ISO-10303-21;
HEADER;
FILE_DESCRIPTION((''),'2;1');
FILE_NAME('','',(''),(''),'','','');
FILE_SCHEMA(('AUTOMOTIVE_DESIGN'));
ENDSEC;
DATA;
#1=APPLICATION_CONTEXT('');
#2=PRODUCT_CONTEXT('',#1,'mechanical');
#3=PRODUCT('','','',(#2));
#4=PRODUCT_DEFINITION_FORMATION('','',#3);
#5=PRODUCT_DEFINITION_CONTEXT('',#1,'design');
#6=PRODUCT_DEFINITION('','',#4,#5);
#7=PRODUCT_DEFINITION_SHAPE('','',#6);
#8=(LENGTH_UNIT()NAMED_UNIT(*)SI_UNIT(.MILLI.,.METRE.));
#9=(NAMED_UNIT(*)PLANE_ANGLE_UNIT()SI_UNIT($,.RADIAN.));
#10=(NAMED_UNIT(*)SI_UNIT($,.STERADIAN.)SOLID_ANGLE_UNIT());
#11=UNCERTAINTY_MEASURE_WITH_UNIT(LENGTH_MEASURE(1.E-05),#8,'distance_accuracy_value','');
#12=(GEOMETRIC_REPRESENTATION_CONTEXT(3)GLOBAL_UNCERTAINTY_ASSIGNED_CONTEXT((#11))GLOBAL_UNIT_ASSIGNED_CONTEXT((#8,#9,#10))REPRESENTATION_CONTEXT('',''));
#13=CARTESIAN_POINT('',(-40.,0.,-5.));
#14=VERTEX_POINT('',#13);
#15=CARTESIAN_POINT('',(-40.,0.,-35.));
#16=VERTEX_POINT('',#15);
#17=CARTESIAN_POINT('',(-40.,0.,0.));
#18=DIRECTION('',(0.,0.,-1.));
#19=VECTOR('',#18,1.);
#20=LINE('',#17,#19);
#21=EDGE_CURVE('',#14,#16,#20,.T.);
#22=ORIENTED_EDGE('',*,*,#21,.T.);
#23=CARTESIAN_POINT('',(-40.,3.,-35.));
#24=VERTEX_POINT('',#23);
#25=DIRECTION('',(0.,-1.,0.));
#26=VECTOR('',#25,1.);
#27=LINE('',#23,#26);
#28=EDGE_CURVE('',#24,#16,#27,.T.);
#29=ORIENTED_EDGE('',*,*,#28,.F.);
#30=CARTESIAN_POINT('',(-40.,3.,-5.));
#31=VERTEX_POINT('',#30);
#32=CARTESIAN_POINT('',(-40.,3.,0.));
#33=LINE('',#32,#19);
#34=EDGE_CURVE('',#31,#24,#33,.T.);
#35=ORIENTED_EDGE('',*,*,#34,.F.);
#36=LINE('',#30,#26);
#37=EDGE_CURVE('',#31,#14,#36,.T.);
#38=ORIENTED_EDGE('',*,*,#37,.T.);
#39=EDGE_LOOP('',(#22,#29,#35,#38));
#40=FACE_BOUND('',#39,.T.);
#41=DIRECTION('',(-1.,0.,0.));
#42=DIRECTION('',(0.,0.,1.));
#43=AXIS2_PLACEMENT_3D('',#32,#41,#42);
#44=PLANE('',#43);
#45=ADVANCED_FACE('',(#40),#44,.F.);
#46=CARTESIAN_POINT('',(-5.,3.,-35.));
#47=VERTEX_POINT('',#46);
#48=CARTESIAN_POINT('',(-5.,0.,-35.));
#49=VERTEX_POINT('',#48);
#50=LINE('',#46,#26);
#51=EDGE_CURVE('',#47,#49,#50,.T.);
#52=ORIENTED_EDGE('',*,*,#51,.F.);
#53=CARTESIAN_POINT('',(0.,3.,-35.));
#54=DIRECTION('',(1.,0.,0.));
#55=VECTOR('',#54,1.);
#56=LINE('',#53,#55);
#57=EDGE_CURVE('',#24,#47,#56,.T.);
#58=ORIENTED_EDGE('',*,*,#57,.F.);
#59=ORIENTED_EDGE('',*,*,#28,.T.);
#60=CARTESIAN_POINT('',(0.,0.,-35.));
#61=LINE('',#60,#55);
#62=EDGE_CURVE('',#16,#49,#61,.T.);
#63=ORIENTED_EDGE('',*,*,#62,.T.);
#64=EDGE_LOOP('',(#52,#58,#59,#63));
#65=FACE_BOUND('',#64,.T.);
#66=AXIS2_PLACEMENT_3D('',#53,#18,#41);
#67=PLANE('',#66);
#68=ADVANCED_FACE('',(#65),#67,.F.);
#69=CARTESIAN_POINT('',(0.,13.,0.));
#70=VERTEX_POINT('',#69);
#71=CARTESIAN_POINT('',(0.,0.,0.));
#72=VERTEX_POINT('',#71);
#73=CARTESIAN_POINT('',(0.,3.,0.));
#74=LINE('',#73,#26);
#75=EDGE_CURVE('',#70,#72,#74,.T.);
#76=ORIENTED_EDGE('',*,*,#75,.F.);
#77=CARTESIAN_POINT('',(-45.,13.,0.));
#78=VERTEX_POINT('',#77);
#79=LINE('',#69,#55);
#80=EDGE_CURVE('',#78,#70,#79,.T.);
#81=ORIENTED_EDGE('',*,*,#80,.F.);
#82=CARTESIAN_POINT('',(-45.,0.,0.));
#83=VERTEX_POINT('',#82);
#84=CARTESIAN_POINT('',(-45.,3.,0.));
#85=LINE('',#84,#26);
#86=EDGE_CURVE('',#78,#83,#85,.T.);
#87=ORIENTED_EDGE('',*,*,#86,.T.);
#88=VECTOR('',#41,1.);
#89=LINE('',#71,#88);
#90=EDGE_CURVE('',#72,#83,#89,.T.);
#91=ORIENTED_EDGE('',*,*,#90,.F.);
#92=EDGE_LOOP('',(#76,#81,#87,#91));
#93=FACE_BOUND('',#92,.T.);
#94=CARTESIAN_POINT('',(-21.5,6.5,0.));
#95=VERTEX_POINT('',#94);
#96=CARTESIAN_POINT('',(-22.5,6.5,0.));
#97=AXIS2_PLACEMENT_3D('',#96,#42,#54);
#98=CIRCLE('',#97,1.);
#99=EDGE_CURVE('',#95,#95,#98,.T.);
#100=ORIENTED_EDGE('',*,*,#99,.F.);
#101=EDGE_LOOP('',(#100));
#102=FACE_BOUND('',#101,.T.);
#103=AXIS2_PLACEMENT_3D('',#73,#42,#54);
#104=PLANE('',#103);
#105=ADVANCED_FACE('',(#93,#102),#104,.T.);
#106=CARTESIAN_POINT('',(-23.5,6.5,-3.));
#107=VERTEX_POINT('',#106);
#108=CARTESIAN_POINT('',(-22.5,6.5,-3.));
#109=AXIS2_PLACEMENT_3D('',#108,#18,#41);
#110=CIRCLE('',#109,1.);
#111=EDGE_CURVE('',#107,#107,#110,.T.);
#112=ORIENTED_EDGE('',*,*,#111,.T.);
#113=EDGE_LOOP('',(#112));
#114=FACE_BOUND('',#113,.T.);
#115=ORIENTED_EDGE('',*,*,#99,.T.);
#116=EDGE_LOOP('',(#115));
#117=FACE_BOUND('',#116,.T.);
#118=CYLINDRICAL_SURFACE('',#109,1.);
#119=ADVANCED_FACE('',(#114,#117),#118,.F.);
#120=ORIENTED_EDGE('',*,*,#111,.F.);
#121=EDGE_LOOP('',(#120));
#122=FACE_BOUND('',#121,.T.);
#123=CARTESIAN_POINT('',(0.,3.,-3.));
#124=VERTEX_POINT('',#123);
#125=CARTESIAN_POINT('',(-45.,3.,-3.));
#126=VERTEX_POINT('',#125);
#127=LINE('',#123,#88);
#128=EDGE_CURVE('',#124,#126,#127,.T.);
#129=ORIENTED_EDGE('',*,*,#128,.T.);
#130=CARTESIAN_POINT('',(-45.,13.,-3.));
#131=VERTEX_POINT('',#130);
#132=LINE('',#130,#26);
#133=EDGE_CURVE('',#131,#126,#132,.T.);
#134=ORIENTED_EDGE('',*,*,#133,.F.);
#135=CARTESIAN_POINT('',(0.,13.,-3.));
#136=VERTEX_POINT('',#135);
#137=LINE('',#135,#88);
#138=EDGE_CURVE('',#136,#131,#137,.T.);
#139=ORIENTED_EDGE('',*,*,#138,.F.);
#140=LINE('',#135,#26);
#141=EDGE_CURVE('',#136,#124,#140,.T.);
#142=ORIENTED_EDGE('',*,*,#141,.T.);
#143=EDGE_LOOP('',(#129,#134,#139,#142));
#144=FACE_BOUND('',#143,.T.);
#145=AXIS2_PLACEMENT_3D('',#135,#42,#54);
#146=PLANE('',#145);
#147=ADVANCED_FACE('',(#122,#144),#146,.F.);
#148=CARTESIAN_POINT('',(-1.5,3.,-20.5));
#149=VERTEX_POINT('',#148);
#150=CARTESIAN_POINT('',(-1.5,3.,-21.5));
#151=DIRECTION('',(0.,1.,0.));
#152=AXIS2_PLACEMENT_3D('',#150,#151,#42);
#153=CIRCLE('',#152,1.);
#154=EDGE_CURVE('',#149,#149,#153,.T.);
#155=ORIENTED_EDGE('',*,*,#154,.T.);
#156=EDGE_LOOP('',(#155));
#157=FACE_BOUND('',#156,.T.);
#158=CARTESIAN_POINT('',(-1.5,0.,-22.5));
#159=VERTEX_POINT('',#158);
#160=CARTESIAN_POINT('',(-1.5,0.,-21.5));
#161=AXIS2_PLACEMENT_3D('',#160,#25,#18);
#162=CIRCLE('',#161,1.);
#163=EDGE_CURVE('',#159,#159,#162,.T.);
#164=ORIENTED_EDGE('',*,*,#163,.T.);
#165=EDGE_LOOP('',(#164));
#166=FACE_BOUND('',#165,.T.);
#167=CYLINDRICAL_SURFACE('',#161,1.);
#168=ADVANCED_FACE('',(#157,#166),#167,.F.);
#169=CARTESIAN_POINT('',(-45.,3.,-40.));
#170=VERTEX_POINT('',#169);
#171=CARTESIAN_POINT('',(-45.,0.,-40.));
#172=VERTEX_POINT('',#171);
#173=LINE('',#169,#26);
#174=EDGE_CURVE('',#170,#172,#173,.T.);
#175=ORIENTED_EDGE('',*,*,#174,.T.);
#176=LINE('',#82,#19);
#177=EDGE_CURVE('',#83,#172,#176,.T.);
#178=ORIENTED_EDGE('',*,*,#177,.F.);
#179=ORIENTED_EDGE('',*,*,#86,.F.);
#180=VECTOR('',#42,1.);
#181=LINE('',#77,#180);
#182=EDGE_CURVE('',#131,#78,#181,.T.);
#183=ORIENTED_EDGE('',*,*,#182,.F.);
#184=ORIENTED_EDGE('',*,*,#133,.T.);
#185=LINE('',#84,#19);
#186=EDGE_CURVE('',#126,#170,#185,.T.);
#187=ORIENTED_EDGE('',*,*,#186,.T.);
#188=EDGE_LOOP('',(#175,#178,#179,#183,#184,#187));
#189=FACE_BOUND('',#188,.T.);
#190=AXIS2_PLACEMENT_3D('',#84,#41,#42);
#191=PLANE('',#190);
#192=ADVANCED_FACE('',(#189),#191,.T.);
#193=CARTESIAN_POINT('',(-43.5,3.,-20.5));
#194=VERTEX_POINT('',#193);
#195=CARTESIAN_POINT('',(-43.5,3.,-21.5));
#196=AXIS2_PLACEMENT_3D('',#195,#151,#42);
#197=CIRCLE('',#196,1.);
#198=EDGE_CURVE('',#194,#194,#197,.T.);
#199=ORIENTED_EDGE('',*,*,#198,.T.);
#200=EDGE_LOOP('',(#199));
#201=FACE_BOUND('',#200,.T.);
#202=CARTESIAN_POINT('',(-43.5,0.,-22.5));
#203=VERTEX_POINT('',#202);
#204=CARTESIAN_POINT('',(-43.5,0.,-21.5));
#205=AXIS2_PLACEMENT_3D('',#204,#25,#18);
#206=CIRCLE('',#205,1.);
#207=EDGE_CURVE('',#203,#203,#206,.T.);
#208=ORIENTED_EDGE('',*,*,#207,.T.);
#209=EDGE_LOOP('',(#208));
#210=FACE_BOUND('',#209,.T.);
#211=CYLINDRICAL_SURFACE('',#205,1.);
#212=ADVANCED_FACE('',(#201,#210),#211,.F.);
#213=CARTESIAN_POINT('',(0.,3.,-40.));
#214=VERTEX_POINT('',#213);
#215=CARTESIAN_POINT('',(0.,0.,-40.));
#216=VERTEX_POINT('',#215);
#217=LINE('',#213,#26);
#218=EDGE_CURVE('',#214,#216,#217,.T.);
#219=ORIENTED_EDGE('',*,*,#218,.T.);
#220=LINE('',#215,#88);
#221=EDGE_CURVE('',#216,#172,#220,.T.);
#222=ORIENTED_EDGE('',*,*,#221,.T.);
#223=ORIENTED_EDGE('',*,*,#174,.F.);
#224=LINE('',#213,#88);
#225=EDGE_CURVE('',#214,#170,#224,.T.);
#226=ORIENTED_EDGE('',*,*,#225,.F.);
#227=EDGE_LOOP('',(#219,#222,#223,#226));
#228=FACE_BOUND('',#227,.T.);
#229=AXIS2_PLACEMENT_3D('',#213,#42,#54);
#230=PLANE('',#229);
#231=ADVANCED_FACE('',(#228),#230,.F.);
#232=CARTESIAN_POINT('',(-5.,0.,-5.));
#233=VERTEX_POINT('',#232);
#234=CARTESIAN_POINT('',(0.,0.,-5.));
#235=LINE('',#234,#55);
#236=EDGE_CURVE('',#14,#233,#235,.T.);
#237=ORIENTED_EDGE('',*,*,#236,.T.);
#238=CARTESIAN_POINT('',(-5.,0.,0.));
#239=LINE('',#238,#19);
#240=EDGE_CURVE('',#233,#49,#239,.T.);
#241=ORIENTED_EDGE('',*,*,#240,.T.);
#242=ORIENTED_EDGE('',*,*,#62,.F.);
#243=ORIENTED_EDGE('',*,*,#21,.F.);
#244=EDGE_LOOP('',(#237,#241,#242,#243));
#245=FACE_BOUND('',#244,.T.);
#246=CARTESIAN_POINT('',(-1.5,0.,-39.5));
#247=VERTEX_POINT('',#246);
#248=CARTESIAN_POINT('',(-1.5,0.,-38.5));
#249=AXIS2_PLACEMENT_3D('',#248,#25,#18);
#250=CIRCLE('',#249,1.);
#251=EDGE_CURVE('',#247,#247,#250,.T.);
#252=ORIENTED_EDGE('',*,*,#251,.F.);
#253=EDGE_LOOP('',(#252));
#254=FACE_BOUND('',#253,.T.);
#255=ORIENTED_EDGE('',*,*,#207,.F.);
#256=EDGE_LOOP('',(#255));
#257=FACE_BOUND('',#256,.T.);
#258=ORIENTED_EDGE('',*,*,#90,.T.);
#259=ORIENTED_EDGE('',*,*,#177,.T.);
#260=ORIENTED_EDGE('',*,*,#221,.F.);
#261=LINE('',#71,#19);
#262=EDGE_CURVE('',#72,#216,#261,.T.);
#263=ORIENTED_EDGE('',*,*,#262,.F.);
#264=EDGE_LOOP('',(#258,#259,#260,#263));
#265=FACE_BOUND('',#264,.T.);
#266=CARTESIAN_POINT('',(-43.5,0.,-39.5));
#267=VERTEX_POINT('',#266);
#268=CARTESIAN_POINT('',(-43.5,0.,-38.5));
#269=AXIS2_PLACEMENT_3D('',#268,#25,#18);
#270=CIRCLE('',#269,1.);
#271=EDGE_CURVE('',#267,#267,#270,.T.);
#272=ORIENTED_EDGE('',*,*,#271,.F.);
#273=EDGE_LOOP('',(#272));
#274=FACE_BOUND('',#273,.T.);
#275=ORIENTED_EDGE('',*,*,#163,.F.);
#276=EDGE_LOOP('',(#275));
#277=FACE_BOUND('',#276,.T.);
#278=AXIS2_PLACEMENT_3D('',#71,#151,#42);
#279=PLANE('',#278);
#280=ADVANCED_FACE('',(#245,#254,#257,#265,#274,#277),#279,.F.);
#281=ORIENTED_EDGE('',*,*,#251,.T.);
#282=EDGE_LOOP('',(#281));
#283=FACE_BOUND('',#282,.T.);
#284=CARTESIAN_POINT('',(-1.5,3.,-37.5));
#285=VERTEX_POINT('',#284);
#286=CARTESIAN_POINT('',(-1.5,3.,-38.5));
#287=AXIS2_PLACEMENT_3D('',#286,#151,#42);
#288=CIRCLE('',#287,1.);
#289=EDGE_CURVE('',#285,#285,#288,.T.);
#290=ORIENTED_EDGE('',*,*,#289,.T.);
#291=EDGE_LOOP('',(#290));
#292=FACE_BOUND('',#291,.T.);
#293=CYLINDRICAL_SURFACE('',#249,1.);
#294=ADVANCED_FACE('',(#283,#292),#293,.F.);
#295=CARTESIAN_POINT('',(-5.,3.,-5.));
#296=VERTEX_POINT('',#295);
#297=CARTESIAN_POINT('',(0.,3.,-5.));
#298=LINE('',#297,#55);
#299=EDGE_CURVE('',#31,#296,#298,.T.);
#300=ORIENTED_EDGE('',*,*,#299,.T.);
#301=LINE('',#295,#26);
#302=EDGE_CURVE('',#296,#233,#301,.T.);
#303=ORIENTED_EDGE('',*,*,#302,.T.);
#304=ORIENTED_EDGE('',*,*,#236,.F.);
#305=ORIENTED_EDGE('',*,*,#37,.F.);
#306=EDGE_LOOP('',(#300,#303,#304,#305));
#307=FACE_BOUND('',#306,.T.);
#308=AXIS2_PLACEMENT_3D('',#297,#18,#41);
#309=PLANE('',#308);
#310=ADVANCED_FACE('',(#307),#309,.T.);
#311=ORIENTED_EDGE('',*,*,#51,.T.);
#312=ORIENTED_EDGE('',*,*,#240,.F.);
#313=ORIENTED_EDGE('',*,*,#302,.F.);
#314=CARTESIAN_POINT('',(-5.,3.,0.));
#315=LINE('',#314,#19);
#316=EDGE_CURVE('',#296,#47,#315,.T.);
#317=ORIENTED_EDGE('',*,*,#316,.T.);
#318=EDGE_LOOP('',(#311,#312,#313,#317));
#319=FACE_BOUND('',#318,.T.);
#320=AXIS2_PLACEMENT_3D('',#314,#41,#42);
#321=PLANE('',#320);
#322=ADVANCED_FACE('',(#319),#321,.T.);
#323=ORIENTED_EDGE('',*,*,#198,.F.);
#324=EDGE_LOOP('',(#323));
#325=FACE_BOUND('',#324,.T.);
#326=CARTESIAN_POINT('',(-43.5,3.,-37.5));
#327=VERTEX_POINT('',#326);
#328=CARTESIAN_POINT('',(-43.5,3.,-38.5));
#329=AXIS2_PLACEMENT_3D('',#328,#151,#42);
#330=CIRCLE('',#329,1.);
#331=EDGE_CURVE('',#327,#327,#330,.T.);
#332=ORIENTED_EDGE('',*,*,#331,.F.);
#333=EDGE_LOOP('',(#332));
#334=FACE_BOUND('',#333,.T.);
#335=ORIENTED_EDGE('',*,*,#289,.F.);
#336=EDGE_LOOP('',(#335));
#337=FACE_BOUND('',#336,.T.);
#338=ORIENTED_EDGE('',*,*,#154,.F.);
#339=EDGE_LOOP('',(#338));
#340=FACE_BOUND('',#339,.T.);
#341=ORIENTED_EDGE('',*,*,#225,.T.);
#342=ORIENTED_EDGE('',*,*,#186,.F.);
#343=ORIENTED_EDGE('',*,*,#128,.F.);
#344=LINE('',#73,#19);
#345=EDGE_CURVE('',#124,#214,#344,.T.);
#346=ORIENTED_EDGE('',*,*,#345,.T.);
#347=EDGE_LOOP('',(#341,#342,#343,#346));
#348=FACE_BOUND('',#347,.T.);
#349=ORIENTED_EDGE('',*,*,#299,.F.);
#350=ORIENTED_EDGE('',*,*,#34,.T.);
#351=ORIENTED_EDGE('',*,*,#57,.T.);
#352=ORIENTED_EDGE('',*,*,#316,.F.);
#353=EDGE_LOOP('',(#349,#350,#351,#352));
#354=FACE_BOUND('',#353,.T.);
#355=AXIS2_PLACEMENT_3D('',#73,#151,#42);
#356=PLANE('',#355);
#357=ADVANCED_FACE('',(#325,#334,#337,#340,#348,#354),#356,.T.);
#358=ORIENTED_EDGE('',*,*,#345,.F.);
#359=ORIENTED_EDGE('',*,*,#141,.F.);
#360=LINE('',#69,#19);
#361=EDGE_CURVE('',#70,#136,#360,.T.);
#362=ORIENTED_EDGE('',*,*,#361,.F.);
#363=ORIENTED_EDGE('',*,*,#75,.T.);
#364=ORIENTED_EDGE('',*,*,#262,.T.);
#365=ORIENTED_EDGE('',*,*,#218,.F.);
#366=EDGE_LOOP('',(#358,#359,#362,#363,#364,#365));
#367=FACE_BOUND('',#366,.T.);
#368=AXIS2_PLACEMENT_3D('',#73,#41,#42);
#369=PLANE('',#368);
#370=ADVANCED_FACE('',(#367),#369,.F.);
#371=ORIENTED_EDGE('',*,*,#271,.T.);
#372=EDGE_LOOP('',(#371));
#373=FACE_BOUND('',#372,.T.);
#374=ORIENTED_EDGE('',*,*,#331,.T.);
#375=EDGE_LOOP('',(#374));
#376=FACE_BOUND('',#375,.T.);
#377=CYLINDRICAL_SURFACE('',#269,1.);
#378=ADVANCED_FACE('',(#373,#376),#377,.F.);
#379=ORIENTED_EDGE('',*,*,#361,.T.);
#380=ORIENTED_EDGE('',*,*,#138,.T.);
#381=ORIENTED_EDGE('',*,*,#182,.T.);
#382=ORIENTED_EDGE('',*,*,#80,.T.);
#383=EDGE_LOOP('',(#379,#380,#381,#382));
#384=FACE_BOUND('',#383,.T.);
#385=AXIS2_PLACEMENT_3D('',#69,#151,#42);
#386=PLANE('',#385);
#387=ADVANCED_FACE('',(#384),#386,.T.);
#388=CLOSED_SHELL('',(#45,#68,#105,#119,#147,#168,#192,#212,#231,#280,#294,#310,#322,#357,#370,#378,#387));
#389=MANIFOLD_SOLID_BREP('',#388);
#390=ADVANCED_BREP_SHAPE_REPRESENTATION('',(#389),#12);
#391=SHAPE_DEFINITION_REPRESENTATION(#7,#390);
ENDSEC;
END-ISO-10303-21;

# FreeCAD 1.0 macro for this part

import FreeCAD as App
import Part
import Sketcher
Q = App.Units.Quantity


def add_polygon(sketch, points):
    """Adds a closed chain of lines whose ends are joined by coincident constraints."""
    first, n = sketch.GeometryCount, len(points)
    for a, b in zip(points, points[1:] + points[:1]):
        sketch.addGeometry(Part.LineSegment(App.Vector(*a, 0), App.Vector(*b, 0)), False)
    for i in range(n):
        sketch.addConstraint(Sketcher.Constraint("Coincident", first + i, 2, first + (i + 1) % n, 1))

doc = App.newDocument("Part")
body = doc.addObject("PartDesign::Body", "Body")

# Sketch on XZ plane
sketch1 = doc.addObject("Sketcher::SketchObject", "Sketch")
body.addObject(sketch1)
sketch1.AttachmentSupport = (doc.XZ_Plane, [""])
sketch1.MapMode = "FlatFace"
add_polygon(sketch1, [(-45, -40), (-45, 0), (0, 0), (0, -40)])  # lines 0-3
add_polygon(sketch1, [(-40, -5), (-40, -35), (-5, -35), (-5, -5)])  # lines 4-7
sketch1.addConstraint([
    Sketcher.Constraint("Vertical", 0),
    Sketcher.Constraint("Horizontal", 1),
    Sketcher.Constraint("Vertical", 2),
    Sketcher.Constraint("Horizontal", 3),
    Sketcher.Constraint("Vertical", 4),
    Sketcher.Constraint("Horizontal", 5),
    Sketcher.Constraint("Vertical", 6),
    Sketcher.Constraint("Horizontal", 7),
    Sketcher.Constraint("Coincident", 1, 2, -1, 1),
    Sketcher.Constraint("DistanceX", 1, 1, 1, 2, Q("45 mm")),
    Sketcher.Constraint("DistanceX", 5, 1, 5, 2, Q("35 mm")),
    Sketcher.Constraint("DistanceY", 0, 1, 0, 2, Q("40 mm")),
    Sketcher.Constraint("DistanceY", 4, 2, 4, 1, Q("30 mm")),
    Sketcher.Constraint("DistanceX", 4, 2, -1, 1, Q("40 mm")),
    Sketcher.Constraint("DistanceY", 4, 2, -1, 1, Q("35 mm")),
])
pad1 = doc.addObject("PartDesign::Pad", "Pad")
body.addObject(pad1)
pad1.Profile = sketch1
pad1.Length = 3
pad1.Reversed = True

# Sketch on XZ plane
sketch2 = doc.addObject("Sketcher::SketchObject", "Sketch001")
body.addObject(sketch2)
sketch2.AttachmentSupport = (doc.XZ_Plane, [""])
sketch2.MapMode = "FlatFace"
sketch2.addGeometry([
    Part.Circle(App.Vector(-1.5, -38.5, 0), App.Vector(0, 0, 1), 1),
    Part.Circle(App.Vector(-43.5, -38.5, 0), App.Vector(0, 0, 1), 1),
    Part.Circle(App.Vector(-1.5, -21.5, 0), App.Vector(0, 0, 1), 1),
    Part.Circle(App.Vector(-43.5, -21.5, 0), App.Vector(0, 0, 1), 1),
], False)
sketch2.addConstraint([
    Sketcher.Constraint("Equal", 0, 1),
    Sketcher.Constraint("Equal", 1, 2),
    Sketcher.Constraint("Equal", 2, 3),
    Sketcher.Constraint("Horizontal", 0, 3, 1, 3),
    Sketcher.Constraint("Horizontal", 2, 3, 3, 3),
    Sketcher.Constraint("Vertical", 0, 3, 2, 3),
    Sketcher.Constraint("Vertical", 1, 3, 3, 3),
    Sketcher.Constraint("Diameter", 0, Q("2 mm")),
    Sketcher.Constraint("DistanceX", 1, 3, 0, 3, Q("42 mm")),
    Sketcher.Constraint("DistanceY", 0, 3, 2, 3, Q("17 mm")),
    Sketcher.Constraint("DistanceX", 0, 3, -1, 1, Q("1.5 mm")),
    Sketcher.Constraint("DistanceY", 0, 3, -1, 1, Q("38.5 mm")),
])
doc.recompute()
hole = doc.addObject("PartDesign::Hole", "Hole")
body.addObject(hole)
hole.Profile = sketch2
hole.ThreadType = "None"
hole.Diameter = 2
hole.DepthType = "Dimension"
hole.Depth = 12.029
hole.DrillPoint = "Angled"
hole.DrillPointAngle = 118

# Sketch on XZ plane
sketch3 = doc.addObject("Sketcher::SketchObject", "Sketch002")
body.addObject(sketch3)
sketch3.AttachmentSupport = (doc.XZ_Plane, [""])
sketch3.MapMode = "FlatFace"
sketch3.AttachmentOffset = App.Placement(App.Vector(0, 0, -3), App.Rotation())
add_polygon(sketch3, [(-45, -3), (-45, 0), (0, 0), (0, -3)])  # lines 0-3
sketch3.addConstraint([
    Sketcher.Constraint("Vertical", 0),
    Sketcher.Constraint("Horizontal", 1),
    Sketcher.Constraint("Vertical", 2),
    Sketcher.Constraint("Horizontal", 3),
    Sketcher.Constraint("Coincident", 1, 2, -1, 1),
    Sketcher.Constraint("DistanceX", 1, 1, 1, 2, Q("45 mm")),
    Sketcher.Constraint("DistanceY", 0, 1, 0, 2, Q("3 mm")),
])
pad2 = doc.addObject("PartDesign::Pad", "Pad001")
body.addObject(pad2)
pad2.Profile = sketch3
pad2.Length = 10
pad2.Reversed = True

# Sketch on XY plane
sketch4 = doc.addObject("Sketcher::SketchObject", "Sketch003")
body.addObject(sketch4)
sketch4.AttachmentSupport = (doc.XY_Plane, [""])
sketch4.MapMode = "FlatFace"
sketch4.AttachmentOffset = App.Placement(App.Vector(0, 0, -3), App.Rotation())
sketch4.addGeometry(Part.Circle(App.Vector(-22.5, 6.5, 0), App.Vector(0, 0, 1), 1), False)
sketch4.addConstraint([
    Sketcher.Constraint("Diameter", 0, Q("2 mm")),
    Sketcher.Constraint("DistanceX", 0, 3, -1, 1, Q("22.5 mm")),
    Sketcher.Constraint("DistanceY", -1, 1, 0, 3, Q("6.5 mm")),
])
doc.recompute()
hole2 = doc.addObject("PartDesign::Hole", "Hole001")
body.addObject(hole2)
hole2.Profile = sketch4
hole2.ThreadType = "None"
hole2.Diameter = 2
hole2.DepthType = "Dimension"
hole2.Depth = 12
hole2.DrillPoint = "Angled"
hole2.DrillPointAngle = 118
hole2.Reversed = True

doc.recompute()
